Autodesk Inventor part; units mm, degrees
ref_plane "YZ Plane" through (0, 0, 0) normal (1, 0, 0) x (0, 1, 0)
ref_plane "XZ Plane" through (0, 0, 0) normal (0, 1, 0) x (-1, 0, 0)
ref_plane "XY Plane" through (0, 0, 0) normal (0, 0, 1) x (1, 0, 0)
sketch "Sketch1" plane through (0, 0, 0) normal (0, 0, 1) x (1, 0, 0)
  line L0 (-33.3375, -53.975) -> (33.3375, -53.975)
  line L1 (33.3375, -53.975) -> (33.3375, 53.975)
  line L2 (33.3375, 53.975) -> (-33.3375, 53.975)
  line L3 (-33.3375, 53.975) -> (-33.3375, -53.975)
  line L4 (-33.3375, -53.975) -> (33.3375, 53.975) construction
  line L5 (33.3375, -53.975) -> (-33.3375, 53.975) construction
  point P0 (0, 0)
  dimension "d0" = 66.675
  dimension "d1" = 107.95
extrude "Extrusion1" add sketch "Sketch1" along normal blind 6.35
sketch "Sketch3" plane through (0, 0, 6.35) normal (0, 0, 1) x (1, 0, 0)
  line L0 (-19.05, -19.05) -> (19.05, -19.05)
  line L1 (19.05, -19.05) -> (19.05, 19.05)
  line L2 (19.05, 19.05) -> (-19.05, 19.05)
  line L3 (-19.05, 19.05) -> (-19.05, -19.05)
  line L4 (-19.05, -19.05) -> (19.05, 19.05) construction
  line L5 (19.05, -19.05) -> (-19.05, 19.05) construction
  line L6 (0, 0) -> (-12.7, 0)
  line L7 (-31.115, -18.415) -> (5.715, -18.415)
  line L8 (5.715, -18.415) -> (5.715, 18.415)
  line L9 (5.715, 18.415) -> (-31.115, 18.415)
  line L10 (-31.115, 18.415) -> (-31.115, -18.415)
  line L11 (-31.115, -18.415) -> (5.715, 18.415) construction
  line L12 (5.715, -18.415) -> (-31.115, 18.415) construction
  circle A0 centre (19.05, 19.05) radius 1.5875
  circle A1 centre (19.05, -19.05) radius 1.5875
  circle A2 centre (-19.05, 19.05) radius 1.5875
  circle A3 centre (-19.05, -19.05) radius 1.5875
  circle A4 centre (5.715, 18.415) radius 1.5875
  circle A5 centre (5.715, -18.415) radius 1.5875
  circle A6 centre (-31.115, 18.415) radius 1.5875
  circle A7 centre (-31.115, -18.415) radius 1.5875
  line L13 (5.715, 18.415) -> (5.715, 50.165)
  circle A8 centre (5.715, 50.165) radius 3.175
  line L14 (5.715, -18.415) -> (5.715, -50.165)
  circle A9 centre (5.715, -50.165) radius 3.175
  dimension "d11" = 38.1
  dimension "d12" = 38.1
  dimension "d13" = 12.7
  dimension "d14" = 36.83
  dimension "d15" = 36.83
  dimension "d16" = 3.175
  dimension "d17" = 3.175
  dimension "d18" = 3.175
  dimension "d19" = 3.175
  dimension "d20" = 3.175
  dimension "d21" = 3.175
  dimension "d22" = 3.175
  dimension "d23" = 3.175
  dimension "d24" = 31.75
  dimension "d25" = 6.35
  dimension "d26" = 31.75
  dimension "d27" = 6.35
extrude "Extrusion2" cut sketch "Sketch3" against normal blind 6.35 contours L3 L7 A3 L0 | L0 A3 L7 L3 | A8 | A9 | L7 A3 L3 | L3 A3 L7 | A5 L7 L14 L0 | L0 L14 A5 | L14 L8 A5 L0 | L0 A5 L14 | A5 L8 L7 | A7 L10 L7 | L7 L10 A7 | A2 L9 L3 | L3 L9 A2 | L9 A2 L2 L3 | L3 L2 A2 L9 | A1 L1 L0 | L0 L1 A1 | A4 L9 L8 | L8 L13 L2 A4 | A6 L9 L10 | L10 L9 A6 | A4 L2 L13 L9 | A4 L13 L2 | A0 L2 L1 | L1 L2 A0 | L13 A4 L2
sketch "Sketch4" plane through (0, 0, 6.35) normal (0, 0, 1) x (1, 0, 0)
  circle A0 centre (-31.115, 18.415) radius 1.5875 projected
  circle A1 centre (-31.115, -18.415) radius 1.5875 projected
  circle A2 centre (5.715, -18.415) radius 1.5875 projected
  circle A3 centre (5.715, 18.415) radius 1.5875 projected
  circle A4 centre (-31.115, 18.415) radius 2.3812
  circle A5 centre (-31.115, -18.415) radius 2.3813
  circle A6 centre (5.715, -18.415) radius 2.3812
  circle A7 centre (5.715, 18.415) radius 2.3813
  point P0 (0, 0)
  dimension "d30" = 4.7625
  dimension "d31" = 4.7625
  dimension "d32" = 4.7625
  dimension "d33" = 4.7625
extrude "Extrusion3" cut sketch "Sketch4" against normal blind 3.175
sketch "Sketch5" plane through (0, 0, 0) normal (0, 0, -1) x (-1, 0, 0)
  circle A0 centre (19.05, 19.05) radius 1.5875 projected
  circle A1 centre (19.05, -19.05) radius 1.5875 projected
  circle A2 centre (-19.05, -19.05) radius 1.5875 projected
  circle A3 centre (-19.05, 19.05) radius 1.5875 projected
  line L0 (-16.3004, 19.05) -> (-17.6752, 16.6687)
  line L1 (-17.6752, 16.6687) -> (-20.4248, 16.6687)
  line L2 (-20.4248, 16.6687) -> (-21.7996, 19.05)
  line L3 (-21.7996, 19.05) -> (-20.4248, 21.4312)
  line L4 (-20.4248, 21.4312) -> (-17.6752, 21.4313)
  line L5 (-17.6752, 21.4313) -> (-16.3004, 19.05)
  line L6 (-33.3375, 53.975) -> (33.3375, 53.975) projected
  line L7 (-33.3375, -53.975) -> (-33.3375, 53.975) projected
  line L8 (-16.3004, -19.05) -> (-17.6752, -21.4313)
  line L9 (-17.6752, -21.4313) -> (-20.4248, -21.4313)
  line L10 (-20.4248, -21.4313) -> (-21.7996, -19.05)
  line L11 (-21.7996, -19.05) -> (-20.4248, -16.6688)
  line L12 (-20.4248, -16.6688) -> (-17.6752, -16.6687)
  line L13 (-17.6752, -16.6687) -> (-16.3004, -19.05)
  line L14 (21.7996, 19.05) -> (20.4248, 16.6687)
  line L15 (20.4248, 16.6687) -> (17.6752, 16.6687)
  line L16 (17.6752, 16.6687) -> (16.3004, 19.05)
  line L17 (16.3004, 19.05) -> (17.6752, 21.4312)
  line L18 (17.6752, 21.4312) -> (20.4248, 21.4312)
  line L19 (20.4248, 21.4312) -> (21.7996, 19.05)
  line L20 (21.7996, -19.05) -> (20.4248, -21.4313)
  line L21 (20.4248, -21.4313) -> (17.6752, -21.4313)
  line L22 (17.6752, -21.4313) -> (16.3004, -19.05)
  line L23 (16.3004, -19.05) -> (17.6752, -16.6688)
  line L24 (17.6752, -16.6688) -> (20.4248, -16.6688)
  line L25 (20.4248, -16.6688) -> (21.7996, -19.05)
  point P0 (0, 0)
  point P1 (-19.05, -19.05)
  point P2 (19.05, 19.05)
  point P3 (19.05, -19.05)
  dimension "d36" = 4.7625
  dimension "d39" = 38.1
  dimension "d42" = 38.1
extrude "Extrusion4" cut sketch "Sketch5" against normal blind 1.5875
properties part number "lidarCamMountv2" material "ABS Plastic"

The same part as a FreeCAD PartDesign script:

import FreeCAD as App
import Part
import Sketcher

V = App.Vector
Q = App.Units.Quantity

doc = App.newDocument("Part")
body = doc.addObject("PartDesign::Body", "Body")

sketch1 = doc.addObject("Sketcher::SketchObject", "Sketch")
body.addObject(sketch1)
sketch1.AttachmentSupport = (doc.XY_Plane, [""])
sketch1.MapMode = "FlatFace"
sketch1.addGeometry([
    Part.LineSegment(V(-33.3375, 53.975, 0), V(-33.3375, -53.975, 0)),
    Part.LineSegment(V(-33.3375, -53.975, 0), V(33.3375, -53.975, 0)),
    Part.LineSegment(V(33.3375, -53.975, 0), V(33.3375, 53.975, 0)),
    Part.LineSegment(V(33.3375, 53.975, 0), V(-33.3375, 53.975, 0)),
], False)
sketch1.addConstraint([
    Sketcher.Constraint("Coincident", 0, 2, 1, 1),
    Sketcher.Constraint("Coincident", 1, 2, 2, 1),
    Sketcher.Constraint("Coincident", 2, 2, 3, 1),
    Sketcher.Constraint("Coincident", 3, 2, 0, 1),
    Sketcher.Constraint("Vertical", 0),
    Sketcher.Constraint("Horizontal", 1),
    Sketcher.Constraint("Vertical", 2),
    Sketcher.Constraint("Horizontal", 3),
    Sketcher.Constraint("Symmetric", 0, 2, 2, 2, -1, 1),
    Sketcher.Constraint("DistanceY", 0, 2, 0, 1, Q("4.25 in")),
    Sketcher.Constraint("DistanceX", 1, 1, 1, 2, Q("2.625 in")),
])
pad1 = doc.addObject("PartDesign::Pad", "Pad")
body.addObject(pad1)
pad1.Profile = sketch1
pad1.Length = Q("0.25 in")

sketch2 = doc.addObject("Sketcher::SketchObject", "Sketch001")
body.addObject(sketch2)
sketch2.AttachmentSupport = (doc.XY_Plane, [""])
sketch2.MapMode = "FlatFace"
sketch2.AttachmentOffset = App.Placement(V(0, 0, 0.25 * 25.4), App.Rotation())
sketch2.addGeometry([
    Part.Circle(V(-19.05, -19.05, 0), V(0, 0, 1), 1.5875),
    Part.Circle(V(5.715, 50.165, 0), V(0, 0, 1), 3.175),
    Part.Circle(V(5.715, -50.165, 0), V(0, 0, 1), 3.175),
    Part.Circle(V(5.715, -18.415, 0), V(0, 0, 1), 1.5875),
    Part.Circle(V(-31.115, -18.415, 0), V(0, 0, 1), 1.5875),
    Part.Circle(V(-19.05, 19.05, 0), V(0, 0, 1), 1.5875),
    Part.Circle(V(19.05, -19.05, 0), V(0, 0, 1), 1.5875),
    Part.Circle(V(5.715, 18.415, 0), V(0, 0, 1), 1.5875),
    Part.Circle(V(-31.115, 18.415, 0), V(0, 0, 1), 1.5875),
    Part.Circle(V(19.05, 19.05, 0), V(0, 0, 1), 1.5875),
], False)
sketch2.addConstraint([
    Sketcher.Constraint("Equal", 1, 2),
    Sketcher.Constraint("Equal", 0, 3),
    Sketcher.Constraint("Equal", 3, 4),
    Sketcher.Constraint("Equal", 4, 5),
    Sketcher.Constraint("Equal", 5, 6),
    Sketcher.Constraint("Equal", 6, 7),
    Sketcher.Constraint("Equal", 7, 8),
    Sketcher.Constraint("Equal", 8, 9),
    Sketcher.Constraint("Symmetric", 5, 3, 6, 3, -1, 1),
    Sketcher.Constraint("Symmetric", 0, 3, 9, 3, -1, 1),
    Sketcher.Constraint("Symmetric", 0, 3, 6, 3, -2),
    Sketcher.Constraint("Symmetric", 1, 3, 2, 3, -1),
    Sketcher.Constraint("Symmetric", 3, 3, 7, 3, -1),
    Sketcher.Constraint("Symmetric", 4, 3, 8, 3, -1),
    Sketcher.Constraint("Horizontal", 3, 3, 4, 3),
    Sketcher.Constraint("Vertical", 2, 3, 3, 3),
    Sketcher.Constraint("Diameter", 1, Q("0.25 in")),
    Sketcher.Constraint("Diameter", 0, Q("0.125 in")),
    Sketcher.Constraint("DistanceY", 0, 3, 5, 3, Q("1.5 in")),
    Sketcher.Constraint("DistanceX", 0, 3, 6, 3, Q("1.5 in")),
    Sketcher.Constraint("DistanceY", 2, 3, 3, 3, Q("1.25 in")),
    Sketcher.Constraint("DistanceX", 4, 3, 3, 3, Q("1.45 in")),
    Sketcher.Constraint("DistanceY", 3, 3, 7, 3, Q("1.45 in")),
    Sketcher.Constraint("DistanceX", -1, 1, 1, 3, Q("0.225 in")),
])
pocket1 = doc.addObject("PartDesign::Pocket", "Pocket")
body.addObject(pocket1)
pocket1.Profile = sketch2
pocket1.Length = Q("0.25 in")

sketch3 = doc.addObject("Sketcher::SketchObject", "Sketch002")
body.addObject(sketch3)
sketch3.AttachmentSupport = (doc.XY_Plane, [""])
sketch3.MapMode = "FlatFace"
sketch3.AttachmentOffset = App.Placement(V(0, 0, 0.25 * 25.4), App.Rotation())
sketch3.addGeometry([
    Part.Circle(V(-31.115, 18.415, 0), V(0, 0, 1), 2.3812),
    Part.Circle(V(-31.115, 18.415, 0), V(0, 0, 1), 1.5875),
    Part.Circle(V(-31.115, -18.415, 0), V(0, 0, 1), 2.3813),
    Part.Circle(V(-31.115, -18.415, 0), V(0, 0, 1), 1.5875),
    Part.Circle(V(5.715, -18.415, 0), V(0, 0, 1), 2.3812),
    Part.Circle(V(5.715, -18.415, 0), V(0, 0, 1), 1.5875),
    Part.Circle(V(5.715, 18.415, 0), V(0, 0, 1), 2.3813),
    Part.Circle(V(5.715, 18.415, 0), V(0, 0, 1), 1.5875),
], False)
sketch3.addConstraint([
    Sketcher.Constraint("Coincident", 1, 3, 0, 3),
    Sketcher.Constraint("Coincident", 3, 3, 2, 3),
    Sketcher.Constraint("Coincident", 5, 3, 4, 3),
    Sketcher.Constraint("Coincident", 7, 3, 6, 3),
    Sketcher.Constraint("Equal", 0, 2),
    Sketcher.Constraint("Equal", 1, 3),
    Sketcher.Constraint("Equal", 2, 4),
    Sketcher.Constraint("Equal", 3, 5),
    Sketcher.Constraint("Equal", 4, 6),
    Sketcher.Constraint("Equal", 5, 7),
    Sketcher.Constraint("Symmetric", 0, 3, 2, 3, -1),
    Sketcher.Constraint("Symmetric", 4, 3, 6, 3, -1),
    Sketcher.Constraint("Horizontal", 3, 3, 4, 3),
    Sketcher.Constraint("Diameter", 0, Q("0.1875 in")),
    Sketcher.Constraint("Diameter", 1, Q("0.125 in")),
    Sketcher.Constraint("DistanceY", 2, 3, 0, 3, Q("1.45 in")),
    Sketcher.Constraint("DistanceX", 2, 3, 4, 3, Q("1.45 in")),
    Sketcher.Constraint("DistanceX", 0, 3, -1, 1, Q("1.225 in")),
])
pocket2 = doc.addObject("PartDesign::Pocket", "Pocket001")
body.addObject(pocket2)
pocket2.Profile = sketch3
pocket2.Length = Q("0.125 in")

sketch4 = doc.addObject("Sketcher::SketchObject", "Sketch003")
body.addObject(sketch4)
sketch4.AttachmentSupport = (doc.XY_Plane, [""])
sketch4.MapMode = "FlatFace"
sketch4.addGeometry([
    Part.LineSegment(V(17.6752, 16.6687, 0), V(16.3004, 19.05, 0)),
    Part.LineSegment(V(16.3004, 19.05, 0), V(17.6752, 21.4313, 0)),
    Part.LineSegment(V(17.6752, 21.4313, 0), V(20.4248, 21.4312, 0)),
    Part.LineSegment(V(20.4248, 21.4312, 0), V(21.7996, 19.05, 0)),
    Part.LineSegment(V(21.7996, 19.05, 0), V(20.4248, 16.6687, 0)),
    Part.LineSegment(V(20.4248, 16.6687, 0), V(17.6752, 16.6687, 0)),
    Part.Circle(V(19.05, 19.05, 0), V(0, 0, 1), 1.5875),
    Part.LineSegment(V(17.6752, -21.4313, 0), V(16.3004, -19.05, 0)),
    Part.LineSegment(V(16.3004, -19.05, 0), V(17.6752, -16.6687, 0)),
    Part.LineSegment(V(17.6752, -16.6687, 0), V(20.4248, -16.6688, 0)),
    Part.LineSegment(V(20.4248, -16.6688, 0), V(21.7996, -19.05, 0)),
    Part.LineSegment(V(21.7996, -19.05, 0), V(20.4248, -21.4313, 0)),
    Part.LineSegment(V(20.4248, -21.4313, 0), V(17.6752, -21.4313, 0)),
    Part.Circle(V(19.05, -19.05, 0), V(0, 0, 1), 1.5875),
    Part.LineSegment(V(-20.4248, 16.6687, 0), V(-21.7996, 19.05, 0)),
    Part.LineSegment(V(-21.7996, 19.05, 0), V(-20.4248, 21.4312, 0)),
    Part.LineSegment(V(-20.4248, 21.4312, 0), V(-17.6752, 21.4312, 0)),
    Part.LineSegment(V(-17.6752, 21.4312, 0), V(-16.3004, 19.05, 0)),
    Part.LineSegment(V(-16.3004, 19.05, 0), V(-17.6752, 16.6687, 0)),
    Part.LineSegment(V(-17.6752, 16.6687, 0), V(-20.4248, 16.6687, 0)),
    Part.Circle(V(-19.05, 19.05, 0), V(0, 0, 1), 1.5875),
    Part.LineSegment(V(-20.4248, -21.4313, 0), V(-21.7996, -19.05, 0)),
    Part.LineSegment(V(-21.7996, -19.05, 0), V(-20.4248, -16.6688, 0)),
    Part.LineSegment(V(-20.4248, -16.6688, 0), V(-17.6752, -16.6688, 0)),
    Part.LineSegment(V(-17.6752, -16.6688, 0), V(-16.3004, -19.05, 0)),
    Part.LineSegment(V(-16.3004, -19.05, 0), V(-17.6752, -21.4313, 0)),
    Part.LineSegment(V(-17.6752, -21.4313, 0), V(-20.4248, -21.4313, 0)),
    Part.Circle(V(-19.05, -19.05, 0), V(0, 0, 1), 1.5875),
], False)
sketch4.addConstraint([
    Sketcher.Constraint("Coincident", 0, 2, 1, 1),
    Sketcher.Constraint("Coincident", 1, 2, 2, 1),
    Sketcher.Constraint("Coincident", 2, 2, 3, 1),
    Sketcher.Constraint("Coincident", 3, 2, 4, 1),
    Sketcher.Constraint("Coincident", 4, 2, 5, 1),
    Sketcher.Constraint("Coincident", 5, 2, 0, 1),
    Sketcher.Constraint("Coincident", 7, 2, 8, 1),
    Sketcher.Constraint("Coincident", 8, 2, 9, 1),
    Sketcher.Constraint("Coincident", 9, 2, 10, 1),
    Sketcher.Constraint("Coincident", 10, 2, 11, 1),
    Sketcher.Constraint("Coincident", 11, 2, 12, 1),
    Sketcher.Constraint("Coincident", 12, 2, 7, 1),
    Sketcher.Constraint("Coincident", 14, 2, 15, 1),
    Sketcher.Constraint("Coincident", 15, 2, 16, 1),
    Sketcher.Constraint("Coincident", 16, 2, 17, 1),
    Sketcher.Constraint("Coincident", 17, 2, 18, 1),
    Sketcher.Constraint("Coincident", 18, 2, 19, 1),
    Sketcher.Constraint("Coincident", 19, 2, 14, 1),
    Sketcher.Constraint("Coincident", 21, 2, 22, 1),
    Sketcher.Constraint("Coincident", 22, 2, 23, 1),
    Sketcher.Constraint("Coincident", 23, 2, 24, 1),
    Sketcher.Constraint("Coincident", 24, 2, 25, 1),
    Sketcher.Constraint("Coincident", 25, 2, 26, 1),
    Sketcher.Constraint("Coincident", 26, 2, 21, 1),
    Sketcher.Constraint("Horizontal", 2),
    Sketcher.Constraint("Horizontal", 5),
    Sketcher.Constraint("Horizontal", 9),
    Sketcher.Constraint("Horizontal", 12),
    Sketcher.Constraint("Horizontal", 16),
    Sketcher.Constraint("Horizontal", 19),
    Sketcher.Constraint("Horizontal", 23),
    Sketcher.Constraint("Horizontal", 26),
    Sketcher.Constraint("Equal", 6, 13),
    Sketcher.Constraint("Equal", 13, 20),
    Sketcher.Constraint("Equal", 20, 27),
    Sketcher.Constraint("Symmetric", 13, 3, 20, 3, -1, 1),
    Sketcher.Constraint("Symmetric", 6, 3, 27, 3, -1, 1),
    Sketcher.Constraint("Symmetric", 10, 2, 14, 2, -1, 1),
    Sketcher.Constraint("Symmetric", 11, 2, 15, 2, -1, 1),
    Sketcher.Constraint("Symmetric", 7, 2, 17, 2, -1, 1),
    Sketcher.Constraint("Symmetric", 8, 2, 18, 2, -1, 1),
    Sketcher.Constraint("Symmetric", 3, 2, 21, 2, -1, 1),
    Sketcher.Constraint("Symmetric", 4, 2, 22, 2, -1, 1),
    Sketcher.Constraint("Symmetric", 0, 2, 24, 2, -1, 1),
    Sketcher.Constraint("Symmetric", 1, 2, 25, 2, -1, 1),
    Sketcher.Constraint("Symmetric", 6, 3, 20, 3, -2),
    Sketcher.Constraint("Symmetric", 3, 2, 14, 2, -2),
    Sketcher.Constraint("Symmetric", 2, 2, 15, 2, -2),
    Sketcher.Constraint("Symmetric", 0, 2, 17, 2, -2),
    Sketcher.Constraint("Symmetric", 5, 2, 18, 2, -2),
    Sketcher.Constraint("Parallel", 0, 3),
    Sketcher.Constraint("Parallel", 1, 4),
    Sketcher.Constraint("Parallel", 3, 7),
    Sketcher.Constraint("Parallel", 4, 8),
    Sketcher.Constraint("Parallel", 7, 10),
    Sketcher.Constraint("Parallel", 10, 14),
    Sketcher.Constraint("Parallel", 14, 17),
    Sketcher.Constraint("Parallel", 17, 21),
    Sketcher.Constraint("Parallel", 21, 24),
    Sketcher.Constraint("Horizontal", 20, 3, 0, 2),
    Sketcher.Constraint("Horizontal", 0, 2, 3, 2),
    Sketcher.Constraint("Vertical", 2, 2, 4, 2),
    Sketcher.Constraint("DistanceY", 13, 3, 6, 3, Q("1.5 in")),
    Sketcher.Constraint("DistanceX", 20, 3, 6, 3, Q("1.5 in")),
    Sketcher.Constraint("DistanceX", 14, 2, 0, 2, Q("1.5 in")),
    Sketcher.Constraint("Diameter", 6, Q("0.125 in")),
    Sketcher.Constraint("Angle", 0, Q("119.9992 deg")),
    Sketcher.Constraint("DistanceY", 4, 2, 2, 2, Q("0.1875 in")),
    Sketcher.Constraint("DistanceX", 2, 1, 2, 2, 2.7496),
])
pocket3 = doc.addObject("PartDesign::Pocket", "Pocket002")
body.addObject(pocket3)
pocket3.Profile = sketch4
pocket3.Length = Q("0.0625 in")
pocket3.Reversed = True

doc.recompute()
